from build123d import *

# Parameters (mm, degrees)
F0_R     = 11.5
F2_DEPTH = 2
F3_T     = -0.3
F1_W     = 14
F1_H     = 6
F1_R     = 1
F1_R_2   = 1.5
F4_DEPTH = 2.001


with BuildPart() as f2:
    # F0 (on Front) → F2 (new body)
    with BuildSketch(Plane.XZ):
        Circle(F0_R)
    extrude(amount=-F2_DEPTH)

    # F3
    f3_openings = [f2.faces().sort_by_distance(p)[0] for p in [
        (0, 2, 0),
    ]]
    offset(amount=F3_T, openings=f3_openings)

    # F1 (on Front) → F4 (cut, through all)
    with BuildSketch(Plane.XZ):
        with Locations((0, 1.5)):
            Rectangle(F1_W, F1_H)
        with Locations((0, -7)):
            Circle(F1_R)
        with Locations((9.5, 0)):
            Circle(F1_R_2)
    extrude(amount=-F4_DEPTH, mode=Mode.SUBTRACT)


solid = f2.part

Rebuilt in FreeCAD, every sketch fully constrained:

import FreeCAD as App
import Part
import Sketcher


def faces_at(feature, points):
    """Names of the faces that lie closest to the given points."""
    faces = feature.Shape.Faces
    near = lambda p: min(range(len(faces)), key=lambda i: faces[i].distToShape(Part.Vertex(*p))[0])
    return sorted({f"Face{near(p) + 1}" for p in points})

doc = App.newDocument("Part")
body = doc.addObject("PartDesign::Body", "Body")

# Sketch on XZ plane
sketch1 = body.newObject("Sketcher::SketchObject", "Sketch")
sketch1.AttachmentSupport = (doc.getObject("XZ_Plane"), [""])
sketch1.MapMode = "FlatFace"
sketch1.addGeometry(Part.Circle(App.Vector(0, 0, 0), App.Vector(0, 0, 1), 11.5), False)
sketch1.addConstraint([
    Sketcher.Constraint("Coincident", 0, 3, -1, 1),
    Sketcher.Constraint("Diameter", 0, 23.0),
])
pad1 = body.newObject("PartDesign::Pad", "Pad")
pad1.Profile = sketch1
pad1.Length = 2
pad1.Reversed = True
doc.recompute()

thickness = body.newObject("PartDesign::Thickness", "Thickness")
thickness.Base = (pad1, faces_at(pad1, [(0, 2, 0)]))
thickness.Value = 0.3
thickness.Reversed = True
thickness.Join = "Arc"

# Sketch on XZ plane
sketch2 = body.newObject("Sketcher::SketchObject", "Sketch001")
sketch2.AttachmentSupport = (doc.getObject("XZ_Plane"), [""])
sketch2.MapMode = "FlatFace"
sketch2.addGeometry([
    Part.LineSegment(App.Vector(-7, 4.5, 0), App.Vector(-7, -1.5, 0)),  # 0
    Part.LineSegment(App.Vector(-7, -1.5, 0), App.Vector(7, -1.5, 0)),  # 1
    Part.LineSegment(App.Vector(7, -1.5, 0), App.Vector(7, 4.5, 0)),  # 2
    Part.LineSegment(App.Vector(7, 4.5, 0), App.Vector(-7, 4.5, 0)),  # 3
    Part.Circle(App.Vector(0, -7, 0), App.Vector(0, 0, 1), 1),  # 4
    Part.Circle(App.Vector(9.5, 0, 0), App.Vector(0, 0, 1), 1.5),  # 5
], False)
sketch2.addConstraint([
    Sketcher.Constraint("Coincident", 0, 2, 1, 1),
    Sketcher.Constraint("Coincident", 1, 2, 2, 1),
    Sketcher.Constraint("Coincident", 2, 2, 3, 1),
    Sketcher.Constraint("Coincident", 3, 2, 0, 1),
    Sketcher.Constraint("Vertical", 0),
    Sketcher.Constraint("Horizontal", 1),
    Sketcher.Constraint("Vertical", 2),
    Sketcher.Constraint("Horizontal", 3),
    Sketcher.Constraint("PointOnObject", 4, 3, -2),
    Sketcher.Constraint("PointOnObject", 5, 3, -1),
    Sketcher.Constraint("Diameter", 4, 2.0),
    Sketcher.Constraint("Diameter", 5, 3.0),
    Sketcher.Constraint("DistanceX", 1, 1, 1, 2, 14.0),
    Sketcher.Constraint("DistanceY", 0, 2, 0, 1, 6.0),
    Sketcher.Constraint("DistanceY", 4, 3, -1, 1, 7.0),
    Sketcher.Constraint("DistanceX", 0, 2, -1, 1, 7.0),
    Sketcher.Constraint("DistanceX", -1, 1, 5, 3, 9.5),
    Sketcher.Constraint("DistanceY", 0, 2, -1, 1, 1.5),
])
pocket1 = body.newObject("PartDesign::Pocket", "Pocket")
pocket1.Profile = sketch2
pocket1.Type = "ThroughAll"

doc.recompute()
